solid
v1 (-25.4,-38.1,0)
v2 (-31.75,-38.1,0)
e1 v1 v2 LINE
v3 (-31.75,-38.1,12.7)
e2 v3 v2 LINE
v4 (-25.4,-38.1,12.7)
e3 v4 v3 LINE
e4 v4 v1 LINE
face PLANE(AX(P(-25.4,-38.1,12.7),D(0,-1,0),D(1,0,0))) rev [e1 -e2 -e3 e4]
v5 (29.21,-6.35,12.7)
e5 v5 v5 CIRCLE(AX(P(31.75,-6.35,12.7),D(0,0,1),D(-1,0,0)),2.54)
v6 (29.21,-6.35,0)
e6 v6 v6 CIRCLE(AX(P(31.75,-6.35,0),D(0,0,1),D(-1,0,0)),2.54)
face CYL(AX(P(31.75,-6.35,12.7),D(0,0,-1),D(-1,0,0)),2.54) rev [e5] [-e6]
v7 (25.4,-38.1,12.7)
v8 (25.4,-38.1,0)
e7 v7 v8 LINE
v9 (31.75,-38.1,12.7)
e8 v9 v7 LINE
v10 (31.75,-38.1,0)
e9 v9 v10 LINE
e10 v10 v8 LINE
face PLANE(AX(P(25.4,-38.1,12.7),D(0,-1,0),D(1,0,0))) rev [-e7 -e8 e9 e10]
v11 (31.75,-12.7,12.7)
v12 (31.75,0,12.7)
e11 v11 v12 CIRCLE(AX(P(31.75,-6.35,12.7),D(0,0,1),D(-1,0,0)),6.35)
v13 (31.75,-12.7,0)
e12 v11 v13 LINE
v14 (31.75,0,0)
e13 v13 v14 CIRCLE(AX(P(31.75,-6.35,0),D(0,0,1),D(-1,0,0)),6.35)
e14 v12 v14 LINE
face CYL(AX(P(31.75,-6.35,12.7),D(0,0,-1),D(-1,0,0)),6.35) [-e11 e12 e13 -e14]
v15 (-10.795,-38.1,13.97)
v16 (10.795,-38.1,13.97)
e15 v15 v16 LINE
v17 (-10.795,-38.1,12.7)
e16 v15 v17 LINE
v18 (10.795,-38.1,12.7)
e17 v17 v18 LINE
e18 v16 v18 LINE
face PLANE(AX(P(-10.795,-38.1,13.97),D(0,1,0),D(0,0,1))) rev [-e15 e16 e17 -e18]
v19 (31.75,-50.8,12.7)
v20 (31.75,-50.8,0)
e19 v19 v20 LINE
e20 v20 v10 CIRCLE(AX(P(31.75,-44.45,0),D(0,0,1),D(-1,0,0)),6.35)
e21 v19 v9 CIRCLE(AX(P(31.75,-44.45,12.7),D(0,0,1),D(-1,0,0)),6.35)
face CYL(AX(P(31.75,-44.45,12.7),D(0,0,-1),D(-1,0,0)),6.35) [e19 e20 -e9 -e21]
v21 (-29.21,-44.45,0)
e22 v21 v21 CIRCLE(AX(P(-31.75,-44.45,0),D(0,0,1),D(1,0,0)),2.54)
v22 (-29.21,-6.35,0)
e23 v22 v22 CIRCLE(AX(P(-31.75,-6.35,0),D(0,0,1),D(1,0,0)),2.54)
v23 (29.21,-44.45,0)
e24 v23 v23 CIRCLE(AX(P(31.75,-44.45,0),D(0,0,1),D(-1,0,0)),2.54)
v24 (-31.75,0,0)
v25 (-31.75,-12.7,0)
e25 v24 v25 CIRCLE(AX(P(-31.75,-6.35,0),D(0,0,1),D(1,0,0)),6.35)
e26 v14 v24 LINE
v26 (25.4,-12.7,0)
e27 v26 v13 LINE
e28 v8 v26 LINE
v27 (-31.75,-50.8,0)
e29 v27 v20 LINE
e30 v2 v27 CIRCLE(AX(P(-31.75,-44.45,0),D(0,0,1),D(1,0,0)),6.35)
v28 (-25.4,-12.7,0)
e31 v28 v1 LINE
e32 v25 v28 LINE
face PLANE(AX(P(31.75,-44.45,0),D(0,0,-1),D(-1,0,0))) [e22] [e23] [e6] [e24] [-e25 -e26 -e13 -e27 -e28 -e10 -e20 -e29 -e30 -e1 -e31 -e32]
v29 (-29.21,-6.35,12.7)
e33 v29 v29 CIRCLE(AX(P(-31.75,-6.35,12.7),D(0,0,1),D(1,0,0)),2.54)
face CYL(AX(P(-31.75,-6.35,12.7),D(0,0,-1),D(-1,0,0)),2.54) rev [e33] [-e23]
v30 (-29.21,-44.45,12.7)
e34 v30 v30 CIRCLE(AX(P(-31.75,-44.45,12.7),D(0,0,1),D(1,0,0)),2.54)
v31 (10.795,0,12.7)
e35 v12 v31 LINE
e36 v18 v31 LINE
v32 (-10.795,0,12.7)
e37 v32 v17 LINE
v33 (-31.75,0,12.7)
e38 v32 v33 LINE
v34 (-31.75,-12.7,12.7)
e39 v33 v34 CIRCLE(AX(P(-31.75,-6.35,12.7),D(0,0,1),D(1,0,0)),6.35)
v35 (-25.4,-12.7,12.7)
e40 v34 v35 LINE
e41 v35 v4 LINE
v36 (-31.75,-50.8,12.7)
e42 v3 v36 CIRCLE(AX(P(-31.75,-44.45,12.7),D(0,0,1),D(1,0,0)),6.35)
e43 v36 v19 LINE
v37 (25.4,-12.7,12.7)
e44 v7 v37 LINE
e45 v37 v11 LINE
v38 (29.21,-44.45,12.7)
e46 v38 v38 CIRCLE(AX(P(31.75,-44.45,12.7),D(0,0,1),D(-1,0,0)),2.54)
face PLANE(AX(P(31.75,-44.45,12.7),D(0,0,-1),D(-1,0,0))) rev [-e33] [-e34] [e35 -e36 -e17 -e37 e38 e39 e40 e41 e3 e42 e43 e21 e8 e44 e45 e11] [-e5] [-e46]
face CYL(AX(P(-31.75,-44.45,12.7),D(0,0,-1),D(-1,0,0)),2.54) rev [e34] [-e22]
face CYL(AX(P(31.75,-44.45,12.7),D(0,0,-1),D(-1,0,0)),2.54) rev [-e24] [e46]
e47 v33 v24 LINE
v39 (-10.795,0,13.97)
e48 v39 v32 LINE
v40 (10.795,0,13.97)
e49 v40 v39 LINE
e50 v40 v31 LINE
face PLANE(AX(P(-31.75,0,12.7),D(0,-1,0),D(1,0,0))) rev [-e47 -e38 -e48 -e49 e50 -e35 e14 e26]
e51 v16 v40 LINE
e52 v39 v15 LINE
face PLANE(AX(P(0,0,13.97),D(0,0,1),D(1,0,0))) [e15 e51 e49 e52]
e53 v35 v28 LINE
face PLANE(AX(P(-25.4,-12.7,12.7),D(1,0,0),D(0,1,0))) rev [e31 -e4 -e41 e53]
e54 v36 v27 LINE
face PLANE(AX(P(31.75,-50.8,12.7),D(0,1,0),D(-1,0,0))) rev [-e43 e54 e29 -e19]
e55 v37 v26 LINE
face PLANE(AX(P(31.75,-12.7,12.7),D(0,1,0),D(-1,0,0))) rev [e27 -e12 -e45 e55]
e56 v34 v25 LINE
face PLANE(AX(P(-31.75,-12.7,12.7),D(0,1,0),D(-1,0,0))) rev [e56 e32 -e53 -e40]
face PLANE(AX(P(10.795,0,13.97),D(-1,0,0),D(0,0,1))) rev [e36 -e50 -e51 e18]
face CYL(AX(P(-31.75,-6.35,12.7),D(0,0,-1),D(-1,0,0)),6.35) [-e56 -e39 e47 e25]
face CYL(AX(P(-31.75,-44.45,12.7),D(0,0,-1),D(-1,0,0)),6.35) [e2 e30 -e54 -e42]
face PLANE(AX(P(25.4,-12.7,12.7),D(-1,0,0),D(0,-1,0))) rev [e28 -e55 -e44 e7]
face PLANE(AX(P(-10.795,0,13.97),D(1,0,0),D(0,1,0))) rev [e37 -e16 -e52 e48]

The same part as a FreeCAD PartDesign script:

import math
import FreeCAD as App
import Part
import Sketcher

V = App.Vector
Q = App.Units.Quantity

doc = App.newDocument("Part")
body = doc.addObject("PartDesign::Body", "Body")

sketch1 = doc.addObject("Sketcher::SketchObject", "Sketch")
body.addObject(sketch1)
sketch1.AttachmentSupport = (doc.XY_Plane, [""])
sketch1.MapMode = "FlatFace"
sketch1.addGeometry(Part.LineSegment(V(31.75, 0, 0), V(-31.75, 0, 0)), False)
sketch1.addGeometry(Part.ArcOfCircle(Part.Circle(V(-31.75, -6.35, 0), V(0, 0, 1), 6.35), math.radians(90), math.radians(270)), False)
sketch1.addGeometry(Part.LineSegment(V(-31.75, -12.7, 0), V(-25.4, -12.7, 0)), False)
sketch1.addGeometry(Part.LineSegment(V(-25.4, -12.7, 0), V(-25.4, -38.1, 0)), False)
sketch1.addGeometry(Part.LineSegment(V(-25.4, -38.1, 0), V(-31.75, -38.1, 0)), False)
sketch1.addGeometry(Part.ArcOfCircle(Part.Circle(V(-31.75, -44.45, 0), V(0, 0, 1), 6.35), math.radians(90), math.radians(270)), False)
sketch1.addGeometry(Part.LineSegment(V(-31.75, -50.8, 0), V(31.75, -50.8, 0)), False)
sketch1.addGeometry(Part.ArcOfCircle(Part.Circle(V(31.75, -44.45, 0), V(0, 0, 1), 6.35), math.radians(-90), math.radians(90)), False)
sketch1.addGeometry(Part.LineSegment(V(31.75, -38.1, 0), V(25.4, -38.1, 0)), False)
sketch1.addGeometry(Part.LineSegment(V(25.4, -38.1, 0), V(25.4, -12.7, 0)), False)
sketch1.addGeometry(Part.LineSegment(V(25.4, -12.7, 0), V(31.75, -12.7, 0)), False)
sketch1.addGeometry(Part.ArcOfCircle(Part.Circle(V(31.75, -6.35, 0), V(0, 0, 1), 6.35), math.radians(-90), math.radians(90)), False)
sketch1.addGeometry(Part.Circle(V(31.75, -44.45, 0), V(0, 0, 1), 2.54), False)
sketch1.addGeometry(Part.Circle(V(-31.75, -44.45, 0), V(0, 0, 1), 2.54), False)
sketch1.addGeometry(Part.Circle(V(31.75, -6.35, 0), V(0, 0, 1), 2.54), False)
sketch1.addGeometry(Part.Circle(V(-31.75, -6.35, 0), V(0, 0, 1), 2.54), False)
sketch1.addConstraint(Sketcher.Constraint("Tangent", 0, 2, 1, 1))
sketch1.addConstraint(Sketcher.Constraint("Tangent", 1, 2, 2, 1))
sketch1.addConstraint(Sketcher.Constraint("Coincident", 2, 2, 3, 1))
sketch1.addConstraint(Sketcher.Constraint("Coincident", 3, 2, 4, 1))
sketch1.addConstraint(Sketcher.Constraint("Tangent", 4, 2, 5, 1))
sketch1.addConstraint(Sketcher.Constraint("Tangent", 5, 2, 6, 1))
sketch1.addConstraint(Sketcher.Constraint("Tangent", 6, 2, 7, 1))
sketch1.addConstraint(Sketcher.Constraint("Tangent", 7, 2, 8, 1))
sketch1.addConstraint(Sketcher.Constraint("Coincident", 8, 2, 9, 1))
sketch1.addConstraint(Sketcher.Constraint("Coincident", 9, 2, 10, 1))
sketch1.addConstraint(Sketcher.Constraint("Tangent", 10, 2, 11, 1))
sketch1.addConstraint(Sketcher.Constraint("Tangent", 11, 2, 0, 1))
sketch1.addConstraint(Sketcher.Constraint("Horizontal", 0))
sketch1.addConstraint(Sketcher.Constraint("Horizontal", 2))
sketch1.addConstraint(Sketcher.Constraint("Vertical", 3))
sketch1.addConstraint(Sketcher.Constraint("Horizontal", 4))
sketch1.addConstraint(Sketcher.Constraint("Horizontal", 6))
sketch1.addConstraint(Sketcher.Constraint("Horizontal", 8))
sketch1.addConstraint(Sketcher.Constraint("Vertical", 9))
sketch1.addConstraint(Sketcher.Constraint("Horizontal", 10))
sketch1.addConstraint(Sketcher.Constraint("Coincident", 12, 3, 7, 3))
sketch1.addConstraint(Sketcher.Constraint("Coincident", 13, 3, 5, 3))
sketch1.addConstraint(Sketcher.Constraint("Coincident", 14, 3, 11, 3))
sketch1.addConstraint(Sketcher.Constraint("Coincident", 15, 3, 1, 3))
sketch1.addConstraint(Sketcher.Constraint("Equal", 1, 5))
sketch1.addConstraint(Sketcher.Constraint("Equal", 5, 7))
sketch1.addConstraint(Sketcher.Constraint("Equal", 7, 11))
sketch1.addConstraint(Sketcher.Constraint("Equal", 12, 13))
sketch1.addConstraint(Sketcher.Constraint("Equal", 13, 14))
sketch1.addConstraint(Sketcher.Constraint("Equal", 14, 15))
sketch1.addConstraint(Sketcher.Constraint("Symmetric", 0, 2, 11, 2, -1, 1))
sketch1.addConstraint(Sketcher.Constraint("Vertical", 1, 3, 5, 3))
sketch1.addConstraint(Sketcher.Constraint("Vertical", 7, 3, 11, 3))
sketch1.addConstraint(Sketcher.Constraint("Equal", 4, 8))
sketch1.addConstraint(Sketcher.Constraint("Diameter", 12, Q("0.2 in")))
sketch1.addConstraint(Sketcher.Constraint("DistanceY", 3, 2, 3, 1, Q("1 in")))
sketch1.addConstraint(Sketcher.Constraint("Radius", 1, Q("0.25 in")))
sketch1.addConstraint(Sketcher.Constraint("DistanceX", 0, 2, 0, 1, Q("2.5 in")))
sketch1.addConstraint(Sketcher.Constraint("DistanceX", 2, 2, -1, 1, Q("1 in")))
pad1 = doc.addObject("PartDesign::Pad", "Pad")
body.addObject(pad1)
pad1.Profile = sketch1
pad1.Length = Q("0.5 in")

sketch2 = doc.addObject("Sketcher::SketchObject", "Sketch001")
body.addObject(sketch2)
sketch2.AttachmentSupport = (doc.XY_Plane, [""])
sketch2.MapMode = "FlatFace"
sketch2.AttachmentOffset = App.Placement(V(0, 0, 0.5 * 25.4), App.Rotation())
sketch2.addGeometry(Part.LineSegment(V(-10.795, 0, 0), V(-10.795, -38.1, 0)), False)
sketch2.addGeometry(Part.LineSegment(V(-10.795, -38.1, 0), V(10.795, -38.1, 0)), False)
sketch2.addGeometry(Part.LineSegment(V(10.795, -38.1, 0), V(10.795, 0, 0)), False)
sketch2.addGeometry(Part.LineSegment(V(10.795, 0, 0), V(-10.795, 0, 0)), False)
sketch2.addConstraint(Sketcher.Constraint("Coincident", 0, 2, 1, 1))
sketch2.addConstraint(Sketcher.Constraint("Coincident", 1, 2, 2, 1))
sketch2.addConstraint(Sketcher.Constraint("Coincident", 2, 2, 3, 1))
sketch2.addConstraint(Sketcher.Constraint("Coincident", 3, 2, 0, 1))
sketch2.addConstraint(Sketcher.Constraint("Vertical", 0))
sketch2.addConstraint(Sketcher.Constraint("Horizontal", 1))
sketch2.addConstraint(Sketcher.Constraint("Vertical", 2))
sketch2.addConstraint(Sketcher.Constraint("Horizontal", 3))
sketch2.addConstraint(Sketcher.Constraint("Symmetric", 2, 2, 3, 2, -1, 1))
sketch2.addConstraint(Sketcher.Constraint("DistanceY", 0, 2, 0, 1, Q("1.5 in")))
sketch2.addConstraint(Sketcher.Constraint("DistanceX", 1, 1, 1, 2, Q("0.85 in")))
pad2 = doc.addObject("PartDesign::Pad", "Pad001")
body.addObject(pad2)
pad2.Profile = sketch2
pad2.Length = Q("0.05 in")

doc.recompute()
